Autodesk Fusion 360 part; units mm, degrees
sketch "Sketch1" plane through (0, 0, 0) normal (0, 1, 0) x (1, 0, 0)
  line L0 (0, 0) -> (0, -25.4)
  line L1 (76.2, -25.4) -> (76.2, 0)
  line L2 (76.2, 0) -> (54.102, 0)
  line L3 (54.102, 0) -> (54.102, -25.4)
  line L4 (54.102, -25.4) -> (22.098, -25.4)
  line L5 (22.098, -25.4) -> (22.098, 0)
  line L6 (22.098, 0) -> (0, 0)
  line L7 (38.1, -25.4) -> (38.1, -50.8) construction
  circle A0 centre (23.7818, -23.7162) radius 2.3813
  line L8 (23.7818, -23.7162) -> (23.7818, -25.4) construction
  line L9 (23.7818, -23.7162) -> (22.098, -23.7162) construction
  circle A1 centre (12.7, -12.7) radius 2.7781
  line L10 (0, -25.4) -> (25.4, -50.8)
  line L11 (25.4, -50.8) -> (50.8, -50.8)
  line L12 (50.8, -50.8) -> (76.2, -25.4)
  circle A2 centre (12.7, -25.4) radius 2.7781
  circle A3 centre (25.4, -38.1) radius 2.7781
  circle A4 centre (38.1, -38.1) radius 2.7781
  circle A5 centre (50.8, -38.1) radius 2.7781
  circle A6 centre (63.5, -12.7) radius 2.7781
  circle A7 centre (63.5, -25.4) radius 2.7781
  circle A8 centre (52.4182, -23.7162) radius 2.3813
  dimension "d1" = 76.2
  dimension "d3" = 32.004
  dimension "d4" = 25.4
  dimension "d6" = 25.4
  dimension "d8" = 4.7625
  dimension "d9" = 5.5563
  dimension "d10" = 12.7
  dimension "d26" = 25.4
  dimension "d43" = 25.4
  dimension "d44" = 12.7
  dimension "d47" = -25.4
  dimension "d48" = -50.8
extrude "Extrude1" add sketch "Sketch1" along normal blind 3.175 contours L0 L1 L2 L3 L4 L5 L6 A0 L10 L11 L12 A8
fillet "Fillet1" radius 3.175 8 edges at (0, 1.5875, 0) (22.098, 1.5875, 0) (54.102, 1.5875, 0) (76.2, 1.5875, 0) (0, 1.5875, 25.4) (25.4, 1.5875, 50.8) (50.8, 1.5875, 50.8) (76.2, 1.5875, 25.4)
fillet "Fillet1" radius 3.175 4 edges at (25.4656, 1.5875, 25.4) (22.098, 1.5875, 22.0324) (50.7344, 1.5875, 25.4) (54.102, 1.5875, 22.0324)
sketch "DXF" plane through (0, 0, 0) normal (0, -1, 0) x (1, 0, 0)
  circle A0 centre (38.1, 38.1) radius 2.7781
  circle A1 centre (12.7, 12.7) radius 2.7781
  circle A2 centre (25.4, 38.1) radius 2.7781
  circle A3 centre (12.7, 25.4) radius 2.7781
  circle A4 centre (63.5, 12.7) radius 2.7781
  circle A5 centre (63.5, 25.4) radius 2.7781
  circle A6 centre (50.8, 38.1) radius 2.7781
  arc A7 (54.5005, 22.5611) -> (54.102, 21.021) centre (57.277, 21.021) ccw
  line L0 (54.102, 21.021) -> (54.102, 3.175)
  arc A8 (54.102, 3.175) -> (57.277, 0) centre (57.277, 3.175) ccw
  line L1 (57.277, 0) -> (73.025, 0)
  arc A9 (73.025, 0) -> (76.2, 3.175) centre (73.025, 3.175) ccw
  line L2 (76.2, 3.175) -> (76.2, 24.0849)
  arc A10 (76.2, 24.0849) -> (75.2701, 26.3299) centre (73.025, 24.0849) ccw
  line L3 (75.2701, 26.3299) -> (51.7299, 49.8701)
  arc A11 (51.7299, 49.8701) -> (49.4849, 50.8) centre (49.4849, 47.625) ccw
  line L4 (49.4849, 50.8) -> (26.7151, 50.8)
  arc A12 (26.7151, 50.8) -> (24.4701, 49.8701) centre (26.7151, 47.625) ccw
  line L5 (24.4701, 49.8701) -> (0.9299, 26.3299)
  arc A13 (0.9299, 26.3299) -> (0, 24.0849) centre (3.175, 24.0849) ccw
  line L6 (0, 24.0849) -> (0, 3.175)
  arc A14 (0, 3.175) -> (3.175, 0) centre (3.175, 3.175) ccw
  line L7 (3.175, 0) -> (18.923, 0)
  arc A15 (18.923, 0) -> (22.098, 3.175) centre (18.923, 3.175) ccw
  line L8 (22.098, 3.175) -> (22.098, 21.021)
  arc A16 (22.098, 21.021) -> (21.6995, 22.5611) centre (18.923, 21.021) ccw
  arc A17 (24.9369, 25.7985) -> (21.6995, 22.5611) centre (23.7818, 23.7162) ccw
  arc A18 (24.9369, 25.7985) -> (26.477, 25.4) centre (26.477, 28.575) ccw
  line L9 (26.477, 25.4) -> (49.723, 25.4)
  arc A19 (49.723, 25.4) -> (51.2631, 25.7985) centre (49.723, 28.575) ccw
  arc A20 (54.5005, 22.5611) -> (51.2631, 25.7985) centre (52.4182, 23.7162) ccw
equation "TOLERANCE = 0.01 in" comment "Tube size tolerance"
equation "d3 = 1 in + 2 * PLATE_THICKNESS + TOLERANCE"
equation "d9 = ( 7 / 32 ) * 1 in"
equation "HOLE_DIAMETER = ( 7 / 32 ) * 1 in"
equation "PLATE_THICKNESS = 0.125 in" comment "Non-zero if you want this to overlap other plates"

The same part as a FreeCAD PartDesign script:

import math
import FreeCAD as App
import Part
import Sketcher

V = App.Vector
Q = App.Units.Quantity


def edges_at(feature, points):
    """Names of the edges that pass closest to the given points."""
    edges = feature.Shape.Edges
    near = lambda p: min(range(len(edges)), key=lambda i: edges[i].distToShape(Part.Vertex(*p))[0])
    return sorted({f"Edge{near(p) + 1}" for p in points})

doc = App.newDocument("Part")
body = doc.addObject("PartDesign::Body", "Body")

# Sketch on XZ plane
sketch1 = doc.addObject("Sketcher::SketchObject", "Sketch")
body.addObject(sketch1)
sketch1.AttachmentSupport = (doc.XZ_Plane, [""])
sketch1.MapMode = "FlatFace"
sketch1.addGeometry([
    Part.LineSegment(V(22.1, 0, 0), V(0, 0, 0)),  # 0
    Part.LineSegment(V(0, 0, 0), V(0, 25.4, 0)),  # 1
    Part.LineSegment(V(0, 25.4, 0), V(25.4, 50.8, 0)),  # 2
    Part.LineSegment(V(25.4, 50.8, 0), V(50.8, 50.8, 0)),  # 3
    Part.LineSegment(V(50.8, 50.8, 0), V(76.2, 25.4, 0)),  # 4
    Part.LineSegment(V(76.2, 25.4, 0), V(76.2, 0, 0)),  # 5
    Part.LineSegment(V(76.2, 0, 0), V(54.1, 0, 0)),  # 6
    Part.LineSegment(V(54.1, 0, 0), V(54.1, 22, 0)),  # 7
    Part.ArcOfCircle(Part.Circle(V(52.4, 23.7, 0), V(0, 0, 1), 2.4), math.radians(-45), math.radians(135)),  # 8
    Part.LineSegment(V(50.7, 25.4, 0), V(25.5, 25.4, 0)),  # 9
    Part.ArcOfCircle(Part.Circle(V(23.8, 23.7, 0), V(0, 0, 1), 2.4), math.radians(45), math.radians(225)),  # 10
    Part.LineSegment(V(22.1, 22, 0), V(22.1, 0, 0)),  # 11
    Part.Circle(V(25.4, 38.1, 0), V(0, 0, 1), 2.8),  # 12
    Part.Circle(V(12.7, 25.4, 0), V(0, 0, 1), 2.8),  # 13
    Part.Circle(V(38.1, 38.1, 0), V(0, 0, 1), 2.8),  # 14
    Part.Circle(V(50.8, 38.1, 0), V(0, 0, 1), 2.8),  # 15
    Part.Circle(V(63.5, 25.4, 0), V(0, 0, 1), 2.8),  # 16
    Part.Circle(V(12.7, 12.7, 0), V(0, 0, 1), 2.8),  # 17
    Part.Circle(V(63.5, 12.7, 0), V(0, 0, 1), 2.8),  # 18
], False)
sketch1.addConstraint([
    Sketcher.Constraint("Coincident", 0, 2, 1, 1),
    Sketcher.Constraint("Coincident", 1, 2, 2, 1),
    Sketcher.Constraint("Coincident", 2, 2, 3, 1),
    Sketcher.Constraint("Coincident", 3, 2, 4, 1),
    Sketcher.Constraint("Coincident", 4, 2, 5, 1),
    Sketcher.Constraint("Coincident", 5, 2, 6, 1),
    Sketcher.Constraint("Coincident", 6, 2, 7, 1),
    Sketcher.Constraint("Coincident", 7, 2, 8, 1),
    Sketcher.Constraint("Coincident", 8, 2, 9, 1),
    Sketcher.Constraint("Coincident", 9, 2, 10, 1),
    Sketcher.Constraint("Coincident", 10, 2, 11, 1),
    Sketcher.Constraint("Coincident", 11, 2, 0, 1),
    Sketcher.Constraint("Horizontal", 0),
    Sketcher.Constraint("Vertical", 1),
    Sketcher.Constraint("Horizontal", 3),
    Sketcher.Constraint("Vertical", 5),
    Sketcher.Constraint("Horizontal", 6),
    Sketcher.Constraint("Vertical", 7),
    Sketcher.Constraint("Horizontal", 9),
    Sketcher.Constraint("Vertical", 11),
    Sketcher.Constraint("Coincident", 0, 2, -1, 1),
    Sketcher.Constraint("Equal", 8, 10),
    Sketcher.Constraint("Equal", 12, 13),
    Sketcher.Constraint("Equal", 13, 14),
    Sketcher.Constraint("Equal", 14, 15),
    Sketcher.Constraint("Equal", 15, 16),
    Sketcher.Constraint("Equal", 16, 17),
    Sketcher.Constraint("Equal", 17, 18),
    Sketcher.Constraint("PointOnObject", 5, 2, -1),
    Sketcher.Constraint("Perpendicular", 2, 4),
    Sketcher.Constraint("Horizontal", 8, 3, 10, 3),
    Sketcher.Constraint("Horizontal", 12, 3, 14, 3),
    Sketcher.Constraint("Horizontal", 14, 3, 15, 3),
    Sketcher.Constraint("Horizontal", 13, 3, 16, 3),
    Sketcher.Constraint("Horizontal", 17, 3, 18, 3),
    Sketcher.Constraint("Horizontal", 16, 3, 1, 2),
    Sketcher.Constraint("Horizontal", 1, 2, 4, 2),
    Sketcher.Constraint("Horizontal", 4, 2, 8, 2),
    Sketcher.Constraint("Horizontal", 7, 2, 10, 2),
    Sketcher.Constraint("Vertical", 13, 3, 17, 3),
    Sketcher.Constraint("Vertical", 16, 3, 18, 3),
    Sketcher.Constraint("Vertical", 12, 3, 2, 2),
    Sketcher.Constraint("Vertical", 15, 3, 3, 2),
    Sketcher.Constraint("Equal", 0, 6),
    Sketcher.Constraint("Equal", 3, 1),
    Sketcher.Constraint("Equal", 2, 4),
    Sketcher.Constraint("DistanceX", 3, 1, 3, 2, Q("1 in")),
    Sketcher.Constraint("Diameter", 12, Q("0.218748 in")),
    Sketcher.Constraint("DistanceX", -1, 1, 12, 3, Q("1 in")),
    Sketcher.Constraint("Radius", 8, Q("0.093752 in")),
    Sketcher.Constraint("DistanceX", 13, 3, 14, 3, Q("1 in")),
    Sketcher.Constraint("DistanceX", 14, 3, 16, 3, Q("1 in")),
    Sketcher.Constraint("DistanceY", 17, 3, 12, 3, Q("1 in")),
    Sketcher.Constraint("DistanceX", -1, 1, 13, 3, Q("0.5 in")),
    Sketcher.Constraint("DistanceY", -1, 1, 17, 3, Q("0.5 in")),
    Sketcher.Constraint("DistanceX", 0, 2, 0, 1, Q("0.87 in")),
    Sketcher.Constraint("DistanceX", 9, 2, 9, 1, 25.2687),
    Sketcher.Constraint("DistanceX", -1, 1, 8, 3, Q("2.0637 in")),
])
pad1 = doc.addObject("PartDesign::Pad", "Pad")
body.addObject(pad1)
pad1.Profile = sketch1
pad1.Length = Q("0.125 in")
pad1.Reversed = True
doc.recompute()

fillet = doc.addObject("PartDesign::Fillet", "Fillet")
body.addObject(fillet)
fillet.Base = (pad1, edges_at(pad1, [
    (0, 1.587, 0),
    (22.098, 1.587, 0),
    (54.102, 1.587, 0),
    (76.2, 1.587, 0),
    (0, 1.587, 25.4),
    (25.4, 1.587, 50.8),
    (50.8, 1.587, 50.8),
    (76.2, 1.587, 25.4),
]))
fillet.Radius = Q("0.125 in")
doc.recompute()

fillet2 = doc.addObject("PartDesign::Fillet", "Fillet001")
body.addObject(fillet2)
fillet2.Base = (fillet, edges_at(fillet, [
    (25.466, 1.587, 25.4),
    (22.098, 1.587, 22.032),
    (50.734, 1.587, 25.4),
    (54.102, 1.587, 22.032),
]))
fillet2.Radius = Q("0.125 in")

doc.recompute()
